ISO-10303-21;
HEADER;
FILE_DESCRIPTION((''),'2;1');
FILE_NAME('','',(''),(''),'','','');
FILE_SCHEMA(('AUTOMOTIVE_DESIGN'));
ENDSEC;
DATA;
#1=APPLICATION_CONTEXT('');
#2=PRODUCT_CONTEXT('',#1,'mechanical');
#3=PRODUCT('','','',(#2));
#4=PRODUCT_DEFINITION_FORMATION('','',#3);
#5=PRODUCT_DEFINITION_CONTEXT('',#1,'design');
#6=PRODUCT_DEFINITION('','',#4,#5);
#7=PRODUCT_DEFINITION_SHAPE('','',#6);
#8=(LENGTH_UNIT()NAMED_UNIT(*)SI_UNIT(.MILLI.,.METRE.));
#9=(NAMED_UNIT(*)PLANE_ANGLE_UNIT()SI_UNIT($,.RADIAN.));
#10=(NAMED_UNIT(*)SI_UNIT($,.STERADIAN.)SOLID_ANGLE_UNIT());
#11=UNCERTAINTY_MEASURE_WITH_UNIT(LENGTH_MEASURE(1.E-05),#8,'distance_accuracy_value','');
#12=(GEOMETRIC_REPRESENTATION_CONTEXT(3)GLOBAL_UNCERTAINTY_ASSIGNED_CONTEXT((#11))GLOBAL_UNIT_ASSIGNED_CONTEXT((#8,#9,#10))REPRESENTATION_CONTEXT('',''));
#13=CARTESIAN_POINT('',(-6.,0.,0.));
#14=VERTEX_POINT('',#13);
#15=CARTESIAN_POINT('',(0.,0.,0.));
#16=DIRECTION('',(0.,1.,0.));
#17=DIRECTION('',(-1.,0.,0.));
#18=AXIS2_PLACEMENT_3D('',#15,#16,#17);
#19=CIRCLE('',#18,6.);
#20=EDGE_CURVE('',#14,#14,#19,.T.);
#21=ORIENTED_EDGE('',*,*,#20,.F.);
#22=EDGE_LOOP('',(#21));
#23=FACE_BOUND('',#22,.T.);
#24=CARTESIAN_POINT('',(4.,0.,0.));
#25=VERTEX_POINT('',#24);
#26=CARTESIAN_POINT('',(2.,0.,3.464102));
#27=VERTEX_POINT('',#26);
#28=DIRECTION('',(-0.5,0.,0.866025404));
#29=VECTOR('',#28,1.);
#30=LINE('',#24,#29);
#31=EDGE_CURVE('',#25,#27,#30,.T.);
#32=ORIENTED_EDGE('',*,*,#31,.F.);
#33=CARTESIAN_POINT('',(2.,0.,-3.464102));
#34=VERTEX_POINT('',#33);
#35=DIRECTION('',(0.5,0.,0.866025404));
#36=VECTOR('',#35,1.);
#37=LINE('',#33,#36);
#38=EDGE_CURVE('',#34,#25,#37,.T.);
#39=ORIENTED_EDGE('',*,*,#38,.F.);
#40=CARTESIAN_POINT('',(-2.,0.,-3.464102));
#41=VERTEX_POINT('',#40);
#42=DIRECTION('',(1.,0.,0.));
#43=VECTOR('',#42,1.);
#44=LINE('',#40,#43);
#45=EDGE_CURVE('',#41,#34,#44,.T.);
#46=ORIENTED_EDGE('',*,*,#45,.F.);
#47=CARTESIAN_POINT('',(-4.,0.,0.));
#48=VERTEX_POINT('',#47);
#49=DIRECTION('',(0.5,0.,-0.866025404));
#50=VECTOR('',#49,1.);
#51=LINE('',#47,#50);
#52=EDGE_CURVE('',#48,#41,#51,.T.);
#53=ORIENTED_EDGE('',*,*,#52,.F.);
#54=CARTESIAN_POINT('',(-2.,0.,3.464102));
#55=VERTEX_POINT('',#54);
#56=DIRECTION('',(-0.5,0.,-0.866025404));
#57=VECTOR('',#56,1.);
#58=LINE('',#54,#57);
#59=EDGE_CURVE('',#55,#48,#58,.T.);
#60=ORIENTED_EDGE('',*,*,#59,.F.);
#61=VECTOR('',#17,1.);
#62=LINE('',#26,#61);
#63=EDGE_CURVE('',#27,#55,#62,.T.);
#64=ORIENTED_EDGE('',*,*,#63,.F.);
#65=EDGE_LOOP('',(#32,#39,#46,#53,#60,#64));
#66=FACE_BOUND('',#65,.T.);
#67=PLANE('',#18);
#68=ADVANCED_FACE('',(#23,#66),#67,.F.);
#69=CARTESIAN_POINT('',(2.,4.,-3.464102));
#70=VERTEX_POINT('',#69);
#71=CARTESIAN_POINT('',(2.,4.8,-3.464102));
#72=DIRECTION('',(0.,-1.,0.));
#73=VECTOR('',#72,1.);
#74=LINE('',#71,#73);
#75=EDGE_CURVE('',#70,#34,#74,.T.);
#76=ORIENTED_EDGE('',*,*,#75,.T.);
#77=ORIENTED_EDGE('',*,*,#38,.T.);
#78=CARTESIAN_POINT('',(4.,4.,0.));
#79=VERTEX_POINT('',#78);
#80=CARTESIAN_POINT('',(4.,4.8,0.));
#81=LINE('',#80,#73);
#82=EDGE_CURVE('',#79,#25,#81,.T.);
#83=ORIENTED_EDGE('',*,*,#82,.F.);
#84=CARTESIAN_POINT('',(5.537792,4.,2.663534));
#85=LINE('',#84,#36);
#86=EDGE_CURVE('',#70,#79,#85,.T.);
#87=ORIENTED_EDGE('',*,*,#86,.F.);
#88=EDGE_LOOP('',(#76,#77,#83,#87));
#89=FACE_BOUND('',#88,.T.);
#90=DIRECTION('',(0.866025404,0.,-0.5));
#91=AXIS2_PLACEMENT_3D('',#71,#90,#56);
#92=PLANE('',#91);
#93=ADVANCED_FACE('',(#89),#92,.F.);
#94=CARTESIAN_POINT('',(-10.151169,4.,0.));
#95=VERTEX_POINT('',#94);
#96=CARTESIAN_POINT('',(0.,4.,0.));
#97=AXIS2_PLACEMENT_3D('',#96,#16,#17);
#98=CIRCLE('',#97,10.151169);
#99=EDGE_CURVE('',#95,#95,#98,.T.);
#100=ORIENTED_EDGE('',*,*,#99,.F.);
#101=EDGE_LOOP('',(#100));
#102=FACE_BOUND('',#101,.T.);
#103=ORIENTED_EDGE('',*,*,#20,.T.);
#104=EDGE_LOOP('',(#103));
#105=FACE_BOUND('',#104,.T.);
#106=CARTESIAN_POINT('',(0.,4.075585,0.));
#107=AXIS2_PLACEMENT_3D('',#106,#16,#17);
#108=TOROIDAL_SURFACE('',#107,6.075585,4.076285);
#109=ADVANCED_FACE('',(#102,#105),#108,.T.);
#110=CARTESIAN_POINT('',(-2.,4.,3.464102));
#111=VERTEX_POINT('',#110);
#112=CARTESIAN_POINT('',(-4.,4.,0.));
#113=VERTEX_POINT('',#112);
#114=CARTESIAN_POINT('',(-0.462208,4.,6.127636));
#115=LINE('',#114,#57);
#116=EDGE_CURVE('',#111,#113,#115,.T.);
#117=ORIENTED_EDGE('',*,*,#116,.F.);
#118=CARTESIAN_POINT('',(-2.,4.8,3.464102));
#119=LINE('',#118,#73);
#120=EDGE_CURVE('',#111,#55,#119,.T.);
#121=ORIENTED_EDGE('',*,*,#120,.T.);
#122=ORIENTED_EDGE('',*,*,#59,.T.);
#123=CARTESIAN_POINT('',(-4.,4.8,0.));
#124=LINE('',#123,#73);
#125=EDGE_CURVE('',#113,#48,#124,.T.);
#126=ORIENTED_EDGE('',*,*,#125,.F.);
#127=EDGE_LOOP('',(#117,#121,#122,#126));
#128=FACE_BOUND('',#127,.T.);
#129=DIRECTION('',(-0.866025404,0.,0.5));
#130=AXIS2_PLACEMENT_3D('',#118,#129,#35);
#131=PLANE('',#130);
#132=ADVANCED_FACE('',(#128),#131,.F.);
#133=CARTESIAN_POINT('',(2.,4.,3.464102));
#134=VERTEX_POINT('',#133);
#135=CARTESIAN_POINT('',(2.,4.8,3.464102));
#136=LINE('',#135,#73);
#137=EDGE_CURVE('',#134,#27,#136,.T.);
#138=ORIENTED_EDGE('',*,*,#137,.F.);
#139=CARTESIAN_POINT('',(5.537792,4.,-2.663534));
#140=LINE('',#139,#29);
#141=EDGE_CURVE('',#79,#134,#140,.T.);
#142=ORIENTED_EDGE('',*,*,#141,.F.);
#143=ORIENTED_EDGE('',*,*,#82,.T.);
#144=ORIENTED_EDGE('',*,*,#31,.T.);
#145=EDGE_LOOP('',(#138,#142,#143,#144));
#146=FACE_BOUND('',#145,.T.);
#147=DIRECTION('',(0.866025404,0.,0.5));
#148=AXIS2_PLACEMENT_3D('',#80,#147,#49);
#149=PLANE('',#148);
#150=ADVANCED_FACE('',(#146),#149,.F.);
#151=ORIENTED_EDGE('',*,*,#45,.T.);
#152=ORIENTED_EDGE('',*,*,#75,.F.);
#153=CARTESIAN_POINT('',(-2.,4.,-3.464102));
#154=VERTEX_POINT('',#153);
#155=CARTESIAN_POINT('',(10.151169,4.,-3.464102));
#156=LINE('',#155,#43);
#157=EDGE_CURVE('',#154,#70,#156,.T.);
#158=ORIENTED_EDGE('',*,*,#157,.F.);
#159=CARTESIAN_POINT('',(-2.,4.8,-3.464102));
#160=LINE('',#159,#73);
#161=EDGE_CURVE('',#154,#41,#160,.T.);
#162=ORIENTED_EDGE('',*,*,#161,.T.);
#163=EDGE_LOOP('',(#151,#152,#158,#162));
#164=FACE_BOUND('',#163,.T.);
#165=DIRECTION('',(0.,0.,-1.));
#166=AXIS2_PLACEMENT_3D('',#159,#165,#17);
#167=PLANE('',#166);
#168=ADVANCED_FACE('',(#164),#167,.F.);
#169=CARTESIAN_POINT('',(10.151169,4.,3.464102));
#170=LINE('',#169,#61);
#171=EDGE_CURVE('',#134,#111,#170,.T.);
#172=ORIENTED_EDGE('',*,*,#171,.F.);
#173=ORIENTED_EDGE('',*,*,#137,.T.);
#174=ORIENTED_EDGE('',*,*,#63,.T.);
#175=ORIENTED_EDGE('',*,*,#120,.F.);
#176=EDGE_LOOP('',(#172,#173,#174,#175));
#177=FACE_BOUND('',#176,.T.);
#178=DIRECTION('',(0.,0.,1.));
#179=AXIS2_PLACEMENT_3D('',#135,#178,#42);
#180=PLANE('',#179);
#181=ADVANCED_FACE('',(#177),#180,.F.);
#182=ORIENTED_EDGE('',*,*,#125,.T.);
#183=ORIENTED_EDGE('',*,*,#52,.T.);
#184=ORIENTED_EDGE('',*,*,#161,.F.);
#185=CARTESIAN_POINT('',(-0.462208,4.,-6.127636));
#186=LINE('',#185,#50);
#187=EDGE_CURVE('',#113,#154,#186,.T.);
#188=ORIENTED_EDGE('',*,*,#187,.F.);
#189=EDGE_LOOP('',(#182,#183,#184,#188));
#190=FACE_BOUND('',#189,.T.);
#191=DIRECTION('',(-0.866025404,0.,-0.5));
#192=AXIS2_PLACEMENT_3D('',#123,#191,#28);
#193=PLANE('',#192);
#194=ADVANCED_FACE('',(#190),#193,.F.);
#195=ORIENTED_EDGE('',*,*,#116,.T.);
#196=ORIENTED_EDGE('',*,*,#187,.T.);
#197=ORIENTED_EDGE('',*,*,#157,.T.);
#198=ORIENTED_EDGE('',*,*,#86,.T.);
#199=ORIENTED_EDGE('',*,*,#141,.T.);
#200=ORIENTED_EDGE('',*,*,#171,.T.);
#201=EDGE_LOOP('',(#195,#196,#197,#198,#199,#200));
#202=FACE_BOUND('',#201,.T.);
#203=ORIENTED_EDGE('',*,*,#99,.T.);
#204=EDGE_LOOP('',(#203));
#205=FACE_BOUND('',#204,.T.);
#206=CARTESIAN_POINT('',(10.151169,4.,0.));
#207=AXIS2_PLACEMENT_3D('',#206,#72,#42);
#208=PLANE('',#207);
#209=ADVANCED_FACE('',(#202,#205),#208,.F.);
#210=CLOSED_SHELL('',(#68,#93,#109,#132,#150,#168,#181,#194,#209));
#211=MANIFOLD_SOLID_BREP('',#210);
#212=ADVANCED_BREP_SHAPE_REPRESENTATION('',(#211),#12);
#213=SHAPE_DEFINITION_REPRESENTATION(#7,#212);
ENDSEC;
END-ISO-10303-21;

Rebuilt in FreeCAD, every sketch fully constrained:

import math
import FreeCAD as App
import Part
import Sketcher
Q = App.Units.Quantity


def add_polygon(sketch, points):
    """Adds a closed chain of lines whose ends are joined by coincident constraints."""
    first, n = sketch.GeometryCount, len(points)
    for a, b in zip(points, points[1:] + points[:1]):
        sketch.addGeometry(Part.LineSegment(App.Vector(*a, 0), App.Vector(*b, 0)), False)
    for i in range(n):
        sketch.addConstraint(Sketcher.Constraint("Coincident", first + i, 2, first + (i + 1) % n, 1))

doc = App.newDocument("Part")
params = doc.addObject("Spreadsheet::Sheet", "Params")
for row, (alias, value) in enumerate([
    ("sketch1_width", "6 mm"),
    ("sketch1_height", "4 mm"),
    ("revolution_angle", "360 deg"),
    ("sketch2_width", "4 mm"),
    ("sketch2_length", "4 mm"),
    ("pocket1_length", "4.8 mm"),
], start=1):
    params.set(f"A{row}", alias)
    params.set(f"B{row}", "=" + value)
    params.setAlias(f"B{row}", alias)

body = doc.addObject("PartDesign::Body", "Body")

# Sketch on XY plane
sketch1 = doc.addObject("Sketcher::SketchObject", "Sketch")
body.addObject(sketch1)
sketch1.AttachmentSupport = (doc.XY_Plane, [""])
sketch1.MapMode = "FlatFace"
sketch1.addGeometry([
    Part.LineSegment(App.Vector(0, 0, 0), App.Vector(6, 0, 0)),
    Part.ArcOfCircle(Part.Circle(App.Vector(6.075585, 4.075585, 0), App.Vector(0, 0, 1), 4.076285), math.radians(-91.062468), math.radians(-1.062468)),
    Part.LineSegment(App.Vector(10.151169, 4, 0), App.Vector(0, 4, 0)),
    Part.LineSegment(App.Vector(0, 4, 0), App.Vector(0, 0, 0)),
], False)
sketch1.addConstraint([
    Sketcher.Constraint("Coincident", 0, 2, 1, 1),
    Sketcher.Constraint("Coincident", 1, 2, 2, 1),
    Sketcher.Constraint("Coincident", 2, 2, 3, 1),
    Sketcher.Constraint("Coincident", 3, 2, 0, 1),
    Sketcher.Constraint("Horizontal", 0),
    Sketcher.Constraint("Horizontal", 2),
    Sketcher.Constraint("Vertical", 3),
    Sketcher.Constraint("Coincident", 3, 2, -1, 1),
    Sketcher.Constraint("DistanceX", 0, 1, 0, 2, Q("6 mm")),
    Sketcher.Constraint("DistanceY", 3, 2, 3, 1, Q("4 mm")),
    Sketcher.Constraint("Radius", 1, Q("4.076285 mm")),
    Sketcher.Constraint("DistanceX", 2, 2, 2, 1, Q("10.151169 mm")),
])
sketch1.setExpression("Constraints[8]", "Params.sketch1_width")
sketch1.setExpression("Constraints[9]", "Params.sketch1_height")
revolution = doc.addObject("PartDesign::Revolution", "Revolution")
body.addObject(revolution)
revolution.Profile = sketch1
revolution.ReferenceAxis = (sketch1, ["V_Axis"])
revolution.setExpression("Angle", "Params.revolution_angle")

# Sketch on XZ plane
sketch2 = doc.addObject("Sketcher::SketchObject", "Sketch001")
body.addObject(sketch2)
sketch2.AttachmentSupport = (doc.XZ_Plane, [""])
sketch2.MapMode = "FlatFace"
add_polygon(sketch2, [(4, 0), (2, 3.464102), (-2, 3.464102), (-4, 0), (-2, -3.464102), (2, -3.464102)])  # lines 0-5
sketch2.addConstraint([
    Sketcher.Constraint("Horizontal", 1),
    Sketcher.Constraint("Horizontal", 4),
    Sketcher.Constraint("Symmetric", 0, 2, 3, 2, -1, 1),
    Sketcher.Constraint("Symmetric", 2, 2, 5, 2, -1, 1),
    Sketcher.Constraint("PointOnObject", 2, 2, -1),
    Sketcher.Constraint("Parallel", 2, 5),
    Sketcher.Constraint("Vertical", 1, 2, 3, 2),
    Sketcher.Constraint("DistanceX", 1, 2, 1, 1, Q("4 mm")),
    Sketcher.Constraint("Angle", 0, Q("120 deg")),
    Sketcher.Constraint("Distance", 0, Q("4 mm")),
])
sketch2.setExpression("Constraints[13]", "Params.sketch2_width")
sketch2.setExpression("Constraints[15]", "Params.sketch2_length")
pocket1 = doc.addObject("PartDesign::Pocket", "Pocket")
body.addObject(pocket1)
pocket1.Profile = sketch2
pocket1.setExpression("Length", "Params.pocket1_length")

doc.recompute()
